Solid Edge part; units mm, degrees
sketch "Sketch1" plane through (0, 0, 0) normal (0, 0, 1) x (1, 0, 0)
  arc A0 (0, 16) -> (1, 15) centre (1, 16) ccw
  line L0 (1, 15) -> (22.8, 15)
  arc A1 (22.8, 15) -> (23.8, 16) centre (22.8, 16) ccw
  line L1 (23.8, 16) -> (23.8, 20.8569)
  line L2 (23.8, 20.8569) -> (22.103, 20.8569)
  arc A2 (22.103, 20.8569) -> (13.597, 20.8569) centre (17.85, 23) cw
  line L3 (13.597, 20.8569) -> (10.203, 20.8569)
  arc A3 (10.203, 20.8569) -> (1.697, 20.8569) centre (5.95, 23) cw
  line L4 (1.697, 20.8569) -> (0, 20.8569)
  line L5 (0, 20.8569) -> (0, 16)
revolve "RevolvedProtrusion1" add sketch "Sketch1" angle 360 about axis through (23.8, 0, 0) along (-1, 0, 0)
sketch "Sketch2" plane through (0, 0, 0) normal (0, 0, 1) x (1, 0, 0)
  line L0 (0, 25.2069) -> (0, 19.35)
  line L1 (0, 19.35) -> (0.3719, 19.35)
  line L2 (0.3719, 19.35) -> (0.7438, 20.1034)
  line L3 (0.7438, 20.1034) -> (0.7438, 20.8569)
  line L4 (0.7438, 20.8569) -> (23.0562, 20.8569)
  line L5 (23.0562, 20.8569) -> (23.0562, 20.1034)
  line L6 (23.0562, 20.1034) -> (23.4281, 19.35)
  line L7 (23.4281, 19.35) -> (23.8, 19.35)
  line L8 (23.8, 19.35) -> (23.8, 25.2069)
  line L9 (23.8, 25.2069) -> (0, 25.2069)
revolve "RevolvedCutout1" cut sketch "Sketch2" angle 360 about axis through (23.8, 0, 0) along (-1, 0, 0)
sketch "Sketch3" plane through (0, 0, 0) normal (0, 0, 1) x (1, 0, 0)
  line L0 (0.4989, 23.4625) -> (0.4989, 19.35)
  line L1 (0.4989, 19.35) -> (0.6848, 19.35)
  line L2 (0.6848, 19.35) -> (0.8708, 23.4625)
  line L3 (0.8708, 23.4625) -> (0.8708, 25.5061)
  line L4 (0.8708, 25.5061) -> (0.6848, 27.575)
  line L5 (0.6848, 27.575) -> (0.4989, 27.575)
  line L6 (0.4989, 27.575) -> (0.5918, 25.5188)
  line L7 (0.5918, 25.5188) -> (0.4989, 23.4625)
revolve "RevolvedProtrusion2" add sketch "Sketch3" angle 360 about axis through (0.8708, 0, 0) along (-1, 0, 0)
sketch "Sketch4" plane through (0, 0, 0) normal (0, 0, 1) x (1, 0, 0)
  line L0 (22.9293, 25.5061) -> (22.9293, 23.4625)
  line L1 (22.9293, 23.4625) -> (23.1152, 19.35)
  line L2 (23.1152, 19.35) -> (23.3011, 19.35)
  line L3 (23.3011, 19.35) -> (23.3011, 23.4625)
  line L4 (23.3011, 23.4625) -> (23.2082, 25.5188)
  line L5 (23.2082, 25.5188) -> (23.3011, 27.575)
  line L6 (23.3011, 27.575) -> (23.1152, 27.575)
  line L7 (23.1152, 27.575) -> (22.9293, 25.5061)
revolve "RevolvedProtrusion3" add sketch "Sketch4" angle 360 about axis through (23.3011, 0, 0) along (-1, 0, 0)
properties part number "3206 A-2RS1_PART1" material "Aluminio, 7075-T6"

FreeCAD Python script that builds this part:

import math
import FreeCAD as App
import Part
import Sketcher

V = App.Vector
Q = App.Units.Quantity


def add_polygon(sketch, points):
    """Adds a closed chain of lines whose ends are joined by coincident constraints."""
    first, n = sketch.GeometryCount, len(points)
    for a, b in zip(points, points[1:] + points[:1]):
        sketch.addGeometry(Part.LineSegment(App.Vector(*a, 0), App.Vector(*b, 0)), False)
    for i in range(n):
        sketch.addConstraint(Sketcher.Constraint("Coincident", first + i, 2, first + (i + 1) % n, 1))

doc = App.newDocument("Part")
body = doc.addObject("PartDesign::Body", "Body")

# Sketch on XY plane
sketch1 = doc.addObject("Sketcher::SketchObject", "Sketch")
body.addObject(sketch1)
sketch1.AttachmentSupport = (doc.XY_Plane, [""])
sketch1.MapMode = "FlatFace"
sketch1.addGeometry(Part.LineSegment(V(0, 20.8569, 0), V(0, 16, 0)), False)
sketch1.addGeometry(Part.ArcOfCircle(Part.Circle(V(1, 16, 0), V(0, 0, 1), 1), math.radians(180), math.radians(270)), False)
sketch1.addGeometry(Part.LineSegment(V(1, 15, 0), V(22.8, 15, 0)), False)
sketch1.addGeometry(Part.ArcOfCircle(Part.Circle(V(22.8, 16, 0), V(0, 0, 1), 1), math.radians(-90), math.radians(0)), False)
sketch1.addGeometry(Part.LineSegment(V(23.8, 16, 0), V(23.8, 20.8569, 0)), False)
sketch1.addGeometry(Part.LineSegment(V(23.8, 20.8569, 0), V(22.103, 20.8569, 0)), False)
sketch1.addGeometry(Part.ArcOfCircle(Part.Circle(V(17.85, 23, 0), V(0, 0, 1), 4.762445), math.radians(-153.256322), math.radians(-26.743678)), False)
sketch1.addGeometry(Part.LineSegment(V(13.597, 20.8569, 0), V(10.203, 20.8569, 0)), False)
sketch1.addGeometry(Part.ArcOfCircle(Part.Circle(V(5.95, 23, 0), V(0, 0, 1), 4.762445), math.radians(-153.256322), math.radians(-26.743678)), False)
sketch1.addGeometry(Part.LineSegment(V(1.697, 20.8569, 0), V(0, 20.8569, 0)), False)
sketch1.addConstraint(Sketcher.Constraint("Tangent", 0, 2, 1, 1))
sketch1.addConstraint(Sketcher.Constraint("Tangent", 1, 2, 2, 1))
sketch1.addConstraint(Sketcher.Constraint("Tangent", 2, 2, 3, 1))
sketch1.addConstraint(Sketcher.Constraint("Tangent", 3, 2, 4, 1))
sketch1.addConstraint(Sketcher.Constraint("Coincident", 4, 2, 5, 1))
sketch1.addConstraint(Sketcher.Constraint("Coincident", 5, 2, 6, 2))
sketch1.addConstraint(Sketcher.Constraint("Coincident", 6, 1, 7, 1))
sketch1.addConstraint(Sketcher.Constraint("Coincident", 7, 2, 8, 2))
sketch1.addConstraint(Sketcher.Constraint("Coincident", 8, 1, 9, 1))
sketch1.addConstraint(Sketcher.Constraint("Coincident", 9, 2, 0, 1))
sketch1.addConstraint(Sketcher.Constraint("Vertical", 0))
sketch1.addConstraint(Sketcher.Constraint("Horizontal", 2))
sketch1.addConstraint(Sketcher.Constraint("Vertical", 4))
sketch1.addConstraint(Sketcher.Constraint("Horizontal", 5))
sketch1.addConstraint(Sketcher.Constraint("Horizontal", 7))
sketch1.addConstraint(Sketcher.Constraint("Horizontal", 9))
sketch1.addConstraint(Sketcher.Constraint("Equal", 1, 3))
sketch1.addConstraint(Sketcher.Constraint("Equal", 6, 8))
sketch1.addConstraint(Sketcher.Constraint("PointOnObject", 0, 2, -2))
sketch1.addConstraint(Sketcher.Constraint("Horizontal", 6, 3, 8, 3))
sketch1.addConstraint(Sketcher.Constraint("Horizontal", 5, 2, 6, 1))
sketch1.addConstraint(Sketcher.Constraint("Horizontal", 7, 2, 8, 1))
sketch1.addConstraint(Sketcher.Constraint("Equal", 5, 9))
sketch1.addConstraint(Sketcher.Constraint("Radius", 1, 1.0))
sketch1.addConstraint(Sketcher.Constraint("DistanceX", 2, 1, 2, 2, 21.8))
sketch1.addConstraint(Sketcher.Constraint("DistanceY", -1, 1, 1, 3, 16.0))
sketch1.addConstraint(Sketcher.Constraint("DistanceY", -1, 1, 6, 3, 23.0))
sketch1.addConstraint(Sketcher.Constraint("Radius", 6, 4.7624))
sketch1.addConstraint(Sketcher.Constraint("DistanceX", 8, 3, 6, 3, 11.9))
sketch1.addConstraint(Sketcher.Constraint("DistanceX", 5, 2, 5, 1, 1.697))
revolution = doc.addObject("PartDesign::Revolution", "Revolution")
body.addObject(revolution)
revolution.Profile = sketch1
revolution.ReferenceAxis = (sketch1, ["H_Axis"])
revolution.Angle = 360

# Sketch on XY plane
sketch2 = doc.addObject("Sketcher::SketchObject", "Sketch001")
body.addObject(sketch2)
sketch2.AttachmentSupport = (doc.XY_Plane, [""])
sketch2.MapMode = "FlatFace"
add_polygon(sketch2, [(23.8, 25.2069), (0, 25.2069), (0, 19.35), (0.3719, 19.35), (0.7438, 20.1034), (0.7438, 20.8569), (23.0562, 20.8569), (23.0562, 20.1034), (23.4281, 19.35), (23.8, 19.35)])  # lines 0-9
sketch2.addConstraint(Sketcher.Constraint("Horizontal", 0))
sketch2.addConstraint(Sketcher.Constraint("Vertical", 1))
sketch2.addConstraint(Sketcher.Constraint("Horizontal", 2))
sketch2.addConstraint(Sketcher.Constraint("Vertical", 4))
sketch2.addConstraint(Sketcher.Constraint("Horizontal", 5))
sketch2.addConstraint(Sketcher.Constraint("Vertical", 6))
sketch2.addConstraint(Sketcher.Constraint("Horizontal", 8))
sketch2.addConstraint(Sketcher.Constraint("Vertical", 9))
sketch2.addConstraint(Sketcher.Constraint("PointOnObject", 0, 2, -2))
sketch2.addConstraint(Sketcher.Constraint("Horizontal", 3, 2, 6, 2))
sketch2.addConstraint(Sketcher.Constraint("Horizontal", 2, 2, 7, 2))
sketch2.addConstraint(Sketcher.Constraint("Equal", 2, 8))
sketch2.addConstraint(Sketcher.Constraint("Equal", 3, 7))
sketch2.addConstraint(Sketcher.Constraint("DistanceX", 0, 2, 0, 1, 23.8))
sketch2.addConstraint(Sketcher.Constraint("DistanceX", 2, 1, 2, 2, 0.372))
sketch2.addConstraint(Sketcher.Constraint("DistanceY", 1, 2, 1, 1, 5.857))
sketch2.addConstraint(Sketcher.Constraint("DistanceY", -1, 1, 1, 2, 19.35))
sketch2.addConstraint(Sketcher.Constraint("DistanceY", 4, 2, 0, 2, 4.35))
sketch2.addConstraint(Sketcher.Constraint("DistanceX", 5, 1, 5, 2, 22.3124))
sketch2.addConstraint(Sketcher.Constraint("DistanceY", 4, 1, 4, 2, 0.7535))
groove = doc.addObject("PartDesign::Groove", "Groove")
body.addObject(groove)
groove.Profile = sketch2
groove.ReferenceAxis = (sketch2, ["H_Axis"])
groove.Angle = 360

# Sketch on XY plane
sketch3 = doc.addObject("Sketcher::SketchObject", "Sketch002")
body.addObject(sketch3)
sketch3.AttachmentSupport = (doc.XY_Plane, [""])
sketch3.MapMode = "FlatFace"
add_polygon(sketch3, [(0.5918, 25.5188), (0.4989, 23.4625), (0.4989, 19.35), (0.6848, 19.35), (0.8708, 23.4625), (0.8708, 25.5061), (0.6848, 27.575), (0.4989, 27.575)])  # lines 0-7
sketch3.addConstraint(Sketcher.Constraint("Vertical", 1))
sketch3.addConstraint(Sketcher.Constraint("Horizontal", 2))
sketch3.addConstraint(Sketcher.Constraint("Vertical", 4))
sketch3.addConstraint(Sketcher.Constraint("Horizontal", 6))
sketch3.addConstraint(Sketcher.Constraint("Parallel", 0, 3))
sketch3.addConstraint(Sketcher.Constraint("Horizontal", 0, 2, 3, 2))
sketch3.addConstraint(Sketcher.Constraint("Vertical", 2, 2, 5, 2))
sketch3.addConstraint(Sketcher.Constraint("Vertical", 1, 2, 6, 2))
sketch3.addConstraint(Sketcher.Constraint("Equal", 0, 7))
sketch3.addConstraint(Sketcher.Constraint("Angle", 3, Q("87.4104 deg")))
sketch3.addConstraint(Sketcher.Constraint("DistanceX", 2, 1, 2, 2, 0.186))
sketch3.addConstraint(Sketcher.Constraint("DistanceY", -1, 1, 1, 2, 19.35))
sketch3.addConstraint(Sketcher.Constraint("DistanceY", 1, 2, 1, 1, 4.1125))
sketch3.addConstraint(Sketcher.Constraint("DistanceY", 4, 1, 4, 2, 2.0436))
sketch3.addConstraint(Sketcher.Constraint("DistanceX", -1, 1, 0, 2, 0.499))
sketch3.addConstraint(Sketcher.Constraint("DistanceY", -1, 1, 5, 2, 27.575))
revolution2 = doc.addObject("PartDesign::Revolution", "Revolution001")
body.addObject(revolution2)
revolution2.Profile = sketch3
revolution2.ReferenceAxis = (sketch3, ["H_Axis"])
revolution2.Angle = 360

# Sketch on XY plane
sketch4 = doc.addObject("Sketcher::SketchObject", "Sketch003")
body.addObject(sketch4)
sketch4.AttachmentSupport = (doc.XY_Plane, [""])
sketch4.MapMode = "FlatFace"
add_polygon(sketch4, [(23.1152, 27.575), (22.9293, 25.5061), (22.9293, 23.4625), (23.1152, 19.35), (23.3011, 19.35), (23.3011, 23.4625), (23.2082, 25.5188), (23.3011, 27.575)])  # lines 0-7
sketch4.addConstraint(Sketcher.Constraint("Vertical", 1))
sketch4.addConstraint(Sketcher.Constraint("Horizontal", 3))
sketch4.addConstraint(Sketcher.Constraint("Vertical", 4))
sketch4.addConstraint(Sketcher.Constraint("Horizontal", 7))
sketch4.addConstraint(Sketcher.Constraint("Parallel", 2, 5))
sketch4.addConstraint(Sketcher.Constraint("Horizontal", 1, 2, 4, 2))
sketch4.addConstraint(Sketcher.Constraint("Vertical", 4, 2, 6, 2))
sketch4.addConstraint(Sketcher.Constraint("Vertical", 2, 2, 7, 2))
sketch4.addConstraint(Sketcher.Constraint("Equal", 5, 6))
sketch4.addConstraint(Sketcher.Constraint("DistanceX", 3, 1, 3, 2, 0.186))
sketch4.addConstraint(Sketcher.Constraint("DistanceY", -1, 1, 2, 2, 19.35))
sketch4.addConstraint(Sketcher.Constraint("DistanceY", 1, 2, 1, 1, 2.0436))
sketch4.addConstraint(Sketcher.Constraint("DistanceY", 4, 1, 4, 2, 4.1125))
sketch4.addConstraint(Sketcher.Constraint("DistanceX", -1, 1, 3, 2, 23.301))
sketch4.addConstraint(Sketcher.Constraint("DistanceY", -1, 1, 6, 2, 27.575))
sketch4.addConstraint(Sketcher.Constraint("DistanceX", 1, 2, 2, 2, 0.186))
revolution3 = doc.addObject("PartDesign::Revolution", "Revolution002")
body.addObject(revolution3)
revolution3.Profile = sketch4
revolution3.ReferenceAxis = (sketch4, ["H_Axis"])
revolution3.Angle = 360

doc.recompute()
